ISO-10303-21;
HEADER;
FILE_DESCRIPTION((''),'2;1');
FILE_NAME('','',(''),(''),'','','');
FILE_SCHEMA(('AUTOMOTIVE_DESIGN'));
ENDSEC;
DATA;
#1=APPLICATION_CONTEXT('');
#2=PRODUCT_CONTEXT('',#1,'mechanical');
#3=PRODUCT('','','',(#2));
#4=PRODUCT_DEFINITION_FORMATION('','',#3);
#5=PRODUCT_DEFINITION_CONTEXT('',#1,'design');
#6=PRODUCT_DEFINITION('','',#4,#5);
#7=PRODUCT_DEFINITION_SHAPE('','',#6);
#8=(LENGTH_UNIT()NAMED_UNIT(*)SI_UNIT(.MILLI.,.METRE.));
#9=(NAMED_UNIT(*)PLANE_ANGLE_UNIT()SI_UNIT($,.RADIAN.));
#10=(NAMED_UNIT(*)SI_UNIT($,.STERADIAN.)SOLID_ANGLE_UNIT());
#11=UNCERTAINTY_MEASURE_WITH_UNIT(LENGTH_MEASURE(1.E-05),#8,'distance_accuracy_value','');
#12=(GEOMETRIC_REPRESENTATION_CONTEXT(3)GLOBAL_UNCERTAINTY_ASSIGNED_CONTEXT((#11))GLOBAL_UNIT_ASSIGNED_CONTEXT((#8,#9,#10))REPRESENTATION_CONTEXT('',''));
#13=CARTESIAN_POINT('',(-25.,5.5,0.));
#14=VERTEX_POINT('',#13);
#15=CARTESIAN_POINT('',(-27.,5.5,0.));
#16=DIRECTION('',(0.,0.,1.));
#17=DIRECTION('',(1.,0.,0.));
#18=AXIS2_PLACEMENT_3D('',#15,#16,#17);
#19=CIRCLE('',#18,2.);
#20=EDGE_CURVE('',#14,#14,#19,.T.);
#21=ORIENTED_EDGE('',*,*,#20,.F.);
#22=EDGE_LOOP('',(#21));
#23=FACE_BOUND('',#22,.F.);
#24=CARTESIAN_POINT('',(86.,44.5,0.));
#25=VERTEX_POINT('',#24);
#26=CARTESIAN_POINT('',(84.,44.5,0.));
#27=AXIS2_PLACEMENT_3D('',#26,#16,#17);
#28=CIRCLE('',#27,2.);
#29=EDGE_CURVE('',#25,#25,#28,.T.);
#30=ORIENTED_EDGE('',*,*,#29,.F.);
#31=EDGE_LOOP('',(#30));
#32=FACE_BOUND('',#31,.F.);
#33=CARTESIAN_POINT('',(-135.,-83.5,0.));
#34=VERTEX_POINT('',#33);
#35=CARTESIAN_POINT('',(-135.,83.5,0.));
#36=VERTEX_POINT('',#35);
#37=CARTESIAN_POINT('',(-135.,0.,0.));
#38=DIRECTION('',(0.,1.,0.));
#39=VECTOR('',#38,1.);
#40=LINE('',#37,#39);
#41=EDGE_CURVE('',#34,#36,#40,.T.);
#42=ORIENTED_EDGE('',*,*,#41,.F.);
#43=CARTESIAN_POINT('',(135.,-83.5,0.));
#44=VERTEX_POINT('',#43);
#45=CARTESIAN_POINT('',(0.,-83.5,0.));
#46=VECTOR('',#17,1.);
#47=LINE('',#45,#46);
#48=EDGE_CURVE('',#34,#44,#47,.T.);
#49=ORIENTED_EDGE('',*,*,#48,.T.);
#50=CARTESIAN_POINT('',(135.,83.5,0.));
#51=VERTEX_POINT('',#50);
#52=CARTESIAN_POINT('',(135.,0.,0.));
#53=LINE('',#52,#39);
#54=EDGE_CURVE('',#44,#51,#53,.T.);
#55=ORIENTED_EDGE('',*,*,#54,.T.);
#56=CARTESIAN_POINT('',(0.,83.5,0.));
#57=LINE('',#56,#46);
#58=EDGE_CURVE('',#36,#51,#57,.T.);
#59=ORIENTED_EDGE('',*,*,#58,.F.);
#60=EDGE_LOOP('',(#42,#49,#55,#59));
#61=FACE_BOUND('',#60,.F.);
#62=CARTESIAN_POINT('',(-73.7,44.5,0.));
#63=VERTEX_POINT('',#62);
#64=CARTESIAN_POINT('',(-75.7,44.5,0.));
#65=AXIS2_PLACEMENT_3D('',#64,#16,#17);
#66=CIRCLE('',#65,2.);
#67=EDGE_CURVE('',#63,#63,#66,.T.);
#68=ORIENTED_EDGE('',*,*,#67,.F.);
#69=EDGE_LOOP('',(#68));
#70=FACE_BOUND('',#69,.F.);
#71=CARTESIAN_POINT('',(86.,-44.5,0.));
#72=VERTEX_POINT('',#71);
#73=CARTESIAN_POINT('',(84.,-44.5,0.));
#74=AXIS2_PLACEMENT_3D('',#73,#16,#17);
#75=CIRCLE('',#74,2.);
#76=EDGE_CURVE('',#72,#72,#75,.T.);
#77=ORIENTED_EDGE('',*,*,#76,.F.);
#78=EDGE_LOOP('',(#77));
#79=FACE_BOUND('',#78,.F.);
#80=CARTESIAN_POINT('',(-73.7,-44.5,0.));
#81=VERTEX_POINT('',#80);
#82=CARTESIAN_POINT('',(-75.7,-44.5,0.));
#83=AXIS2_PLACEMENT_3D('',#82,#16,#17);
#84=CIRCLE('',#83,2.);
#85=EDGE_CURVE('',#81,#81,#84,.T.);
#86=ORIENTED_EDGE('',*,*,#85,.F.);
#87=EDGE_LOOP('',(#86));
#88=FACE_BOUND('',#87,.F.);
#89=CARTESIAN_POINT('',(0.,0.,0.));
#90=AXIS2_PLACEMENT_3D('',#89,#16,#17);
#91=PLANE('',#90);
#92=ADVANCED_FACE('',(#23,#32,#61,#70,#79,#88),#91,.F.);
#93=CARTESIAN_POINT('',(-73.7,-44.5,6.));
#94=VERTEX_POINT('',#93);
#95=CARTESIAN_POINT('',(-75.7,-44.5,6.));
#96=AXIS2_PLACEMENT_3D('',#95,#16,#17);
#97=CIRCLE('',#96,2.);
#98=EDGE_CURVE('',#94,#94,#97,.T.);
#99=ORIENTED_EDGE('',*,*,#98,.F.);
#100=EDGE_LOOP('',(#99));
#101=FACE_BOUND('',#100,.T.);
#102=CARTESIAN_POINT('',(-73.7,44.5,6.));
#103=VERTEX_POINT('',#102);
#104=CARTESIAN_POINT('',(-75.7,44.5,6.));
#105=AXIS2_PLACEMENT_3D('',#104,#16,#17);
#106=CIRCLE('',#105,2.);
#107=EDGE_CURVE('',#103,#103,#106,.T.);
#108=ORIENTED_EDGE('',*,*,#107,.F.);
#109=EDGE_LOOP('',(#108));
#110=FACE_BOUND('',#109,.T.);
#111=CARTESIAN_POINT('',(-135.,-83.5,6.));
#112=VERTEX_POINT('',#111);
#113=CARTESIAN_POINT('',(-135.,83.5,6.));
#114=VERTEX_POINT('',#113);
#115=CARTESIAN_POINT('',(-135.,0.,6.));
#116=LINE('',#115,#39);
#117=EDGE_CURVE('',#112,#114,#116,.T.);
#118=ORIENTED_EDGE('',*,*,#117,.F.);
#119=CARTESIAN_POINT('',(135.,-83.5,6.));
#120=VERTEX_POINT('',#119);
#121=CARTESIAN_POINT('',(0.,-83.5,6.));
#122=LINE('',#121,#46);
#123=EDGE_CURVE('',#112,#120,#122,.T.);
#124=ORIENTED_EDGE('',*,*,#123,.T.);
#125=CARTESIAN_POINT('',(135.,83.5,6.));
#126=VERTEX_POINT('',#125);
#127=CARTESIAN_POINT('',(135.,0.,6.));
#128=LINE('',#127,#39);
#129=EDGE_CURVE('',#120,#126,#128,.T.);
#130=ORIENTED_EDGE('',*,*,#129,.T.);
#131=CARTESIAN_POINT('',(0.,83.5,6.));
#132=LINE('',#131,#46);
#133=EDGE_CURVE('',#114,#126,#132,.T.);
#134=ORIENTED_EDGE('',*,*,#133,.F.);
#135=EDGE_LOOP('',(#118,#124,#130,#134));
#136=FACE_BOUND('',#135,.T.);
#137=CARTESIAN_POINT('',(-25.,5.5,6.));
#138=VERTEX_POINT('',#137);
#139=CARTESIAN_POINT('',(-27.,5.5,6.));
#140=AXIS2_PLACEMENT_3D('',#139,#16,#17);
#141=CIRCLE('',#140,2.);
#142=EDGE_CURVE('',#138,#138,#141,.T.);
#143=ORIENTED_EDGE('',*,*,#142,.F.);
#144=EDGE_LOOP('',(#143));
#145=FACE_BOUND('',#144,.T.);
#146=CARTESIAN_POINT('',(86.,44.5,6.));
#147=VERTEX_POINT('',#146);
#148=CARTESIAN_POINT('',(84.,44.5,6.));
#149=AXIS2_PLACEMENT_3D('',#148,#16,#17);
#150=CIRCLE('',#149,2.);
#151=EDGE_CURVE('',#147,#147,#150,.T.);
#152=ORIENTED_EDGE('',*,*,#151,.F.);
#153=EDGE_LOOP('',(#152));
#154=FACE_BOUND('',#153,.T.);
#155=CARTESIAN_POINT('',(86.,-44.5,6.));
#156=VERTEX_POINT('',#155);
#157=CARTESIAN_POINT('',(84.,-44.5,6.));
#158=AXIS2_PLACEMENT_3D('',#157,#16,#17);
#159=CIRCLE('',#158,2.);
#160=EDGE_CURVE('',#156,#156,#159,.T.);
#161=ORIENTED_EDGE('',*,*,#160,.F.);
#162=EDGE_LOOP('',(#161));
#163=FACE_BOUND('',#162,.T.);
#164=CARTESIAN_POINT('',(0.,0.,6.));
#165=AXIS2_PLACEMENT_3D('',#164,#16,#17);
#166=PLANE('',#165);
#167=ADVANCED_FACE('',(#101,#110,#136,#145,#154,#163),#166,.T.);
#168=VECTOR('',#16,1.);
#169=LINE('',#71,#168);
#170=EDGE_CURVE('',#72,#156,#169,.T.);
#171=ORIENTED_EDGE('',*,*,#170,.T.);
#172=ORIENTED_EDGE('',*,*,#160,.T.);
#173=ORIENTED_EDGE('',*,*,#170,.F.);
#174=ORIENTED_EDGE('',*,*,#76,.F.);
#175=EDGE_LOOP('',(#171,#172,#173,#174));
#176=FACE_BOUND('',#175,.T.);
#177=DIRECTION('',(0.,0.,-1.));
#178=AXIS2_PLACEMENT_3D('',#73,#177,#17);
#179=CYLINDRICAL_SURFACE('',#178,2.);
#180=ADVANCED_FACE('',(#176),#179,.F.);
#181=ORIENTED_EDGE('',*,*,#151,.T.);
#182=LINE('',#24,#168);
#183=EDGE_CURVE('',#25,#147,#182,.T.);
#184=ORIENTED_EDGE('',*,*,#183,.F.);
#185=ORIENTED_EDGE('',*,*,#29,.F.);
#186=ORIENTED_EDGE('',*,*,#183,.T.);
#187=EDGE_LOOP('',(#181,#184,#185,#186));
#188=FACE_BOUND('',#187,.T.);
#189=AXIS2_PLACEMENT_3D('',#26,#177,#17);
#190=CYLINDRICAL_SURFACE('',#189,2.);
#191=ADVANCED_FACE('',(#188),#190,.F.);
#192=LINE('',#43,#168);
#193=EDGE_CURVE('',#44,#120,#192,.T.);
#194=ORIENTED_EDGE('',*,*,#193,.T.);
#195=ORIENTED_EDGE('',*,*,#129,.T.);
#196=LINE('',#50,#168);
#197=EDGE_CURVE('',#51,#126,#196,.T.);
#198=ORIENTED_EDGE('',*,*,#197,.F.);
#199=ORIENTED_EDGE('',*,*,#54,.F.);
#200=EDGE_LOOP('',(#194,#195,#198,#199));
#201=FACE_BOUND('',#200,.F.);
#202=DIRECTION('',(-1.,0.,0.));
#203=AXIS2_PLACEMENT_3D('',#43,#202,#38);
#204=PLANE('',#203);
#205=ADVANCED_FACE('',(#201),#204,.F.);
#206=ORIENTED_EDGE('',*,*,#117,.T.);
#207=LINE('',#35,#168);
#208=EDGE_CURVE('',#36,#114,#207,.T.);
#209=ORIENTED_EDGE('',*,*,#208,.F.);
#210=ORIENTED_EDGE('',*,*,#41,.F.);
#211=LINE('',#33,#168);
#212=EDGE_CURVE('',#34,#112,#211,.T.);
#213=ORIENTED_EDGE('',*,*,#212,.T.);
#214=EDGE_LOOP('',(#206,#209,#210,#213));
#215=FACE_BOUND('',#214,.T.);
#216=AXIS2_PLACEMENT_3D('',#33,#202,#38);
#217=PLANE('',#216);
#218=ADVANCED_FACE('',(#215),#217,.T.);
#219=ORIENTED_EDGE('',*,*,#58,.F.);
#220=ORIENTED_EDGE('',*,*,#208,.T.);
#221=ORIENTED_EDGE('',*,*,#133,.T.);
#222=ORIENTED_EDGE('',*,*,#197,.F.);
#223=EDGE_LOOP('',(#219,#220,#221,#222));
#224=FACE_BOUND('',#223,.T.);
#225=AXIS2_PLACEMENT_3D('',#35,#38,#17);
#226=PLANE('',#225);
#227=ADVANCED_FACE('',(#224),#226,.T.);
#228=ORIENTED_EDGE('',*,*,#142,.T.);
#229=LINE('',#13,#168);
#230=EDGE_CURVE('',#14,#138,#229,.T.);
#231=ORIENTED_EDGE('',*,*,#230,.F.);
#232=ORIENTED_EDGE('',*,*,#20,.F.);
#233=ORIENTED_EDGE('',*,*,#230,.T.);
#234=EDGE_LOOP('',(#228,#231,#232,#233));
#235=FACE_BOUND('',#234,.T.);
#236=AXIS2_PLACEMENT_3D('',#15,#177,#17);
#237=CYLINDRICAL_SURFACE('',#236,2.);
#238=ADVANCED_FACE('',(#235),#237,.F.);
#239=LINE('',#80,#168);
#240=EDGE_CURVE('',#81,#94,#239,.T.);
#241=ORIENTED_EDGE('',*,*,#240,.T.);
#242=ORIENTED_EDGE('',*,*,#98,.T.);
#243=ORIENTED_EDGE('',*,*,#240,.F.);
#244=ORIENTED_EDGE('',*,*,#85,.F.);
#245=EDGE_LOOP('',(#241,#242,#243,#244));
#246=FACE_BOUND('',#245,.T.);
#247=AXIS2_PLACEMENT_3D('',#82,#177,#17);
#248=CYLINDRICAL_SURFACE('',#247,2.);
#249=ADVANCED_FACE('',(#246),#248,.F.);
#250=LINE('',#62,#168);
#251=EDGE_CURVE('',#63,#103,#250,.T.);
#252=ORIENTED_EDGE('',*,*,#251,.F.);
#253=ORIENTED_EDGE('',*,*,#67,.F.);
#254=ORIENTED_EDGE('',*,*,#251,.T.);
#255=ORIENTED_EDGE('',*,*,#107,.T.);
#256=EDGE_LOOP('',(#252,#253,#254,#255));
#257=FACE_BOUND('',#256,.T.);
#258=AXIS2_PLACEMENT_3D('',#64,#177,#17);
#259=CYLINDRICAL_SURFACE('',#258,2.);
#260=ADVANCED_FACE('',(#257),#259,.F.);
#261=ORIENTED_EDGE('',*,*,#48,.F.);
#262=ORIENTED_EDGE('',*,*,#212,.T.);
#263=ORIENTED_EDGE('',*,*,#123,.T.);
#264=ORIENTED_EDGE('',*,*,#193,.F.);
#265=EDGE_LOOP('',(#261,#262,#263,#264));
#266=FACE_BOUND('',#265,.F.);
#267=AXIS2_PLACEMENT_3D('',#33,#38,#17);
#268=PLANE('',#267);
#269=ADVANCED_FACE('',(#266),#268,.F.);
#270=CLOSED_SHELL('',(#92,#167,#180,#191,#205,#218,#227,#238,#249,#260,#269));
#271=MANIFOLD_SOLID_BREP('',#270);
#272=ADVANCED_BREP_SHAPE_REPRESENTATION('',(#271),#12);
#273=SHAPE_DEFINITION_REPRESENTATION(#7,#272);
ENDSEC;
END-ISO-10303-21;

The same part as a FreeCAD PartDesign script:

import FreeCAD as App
import Part
import Sketcher
Q = App.Units.Quantity

doc = App.newDocument("Part")
params = doc.addObject("Spreadsheet::Sheet", "Params")
for row, (alias, value) in enumerate([
    ("sketch1_diameter", "4 mm"),
    ("sketch1_width", "270 mm"),
    ("sketch1_height", "167 mm"),
    ("pad1_length", "6 mm"),
], start=1):
    params.set(f"A{row}", alias)
    params.set(f"B{row}", "=" + value)
    params.setAlias(f"B{row}", alias)

body = doc.addObject("PartDesign::Body", "Body")

sketch1 = body.newObject("Sketcher::SketchObject", "Sketch")
sketch1.AttachmentSupport = (doc.getObject("XY_Plane"), [""])
sketch1.MapMode = "FlatFace"
sketch1.addGeometry([
    Part.LineSegment(App.Vector(-135, 83.5, 0), App.Vector(-135, -83.5, 0)),
    Part.LineSegment(App.Vector(-135, -83.5, 0), App.Vector(135, -83.5, 0)),
    Part.LineSegment(App.Vector(135, -83.5, 0), App.Vector(135, 83.5, 0)),
    Part.LineSegment(App.Vector(135, 83.5, 0), App.Vector(-135, 83.5, 0)),
    Part.Circle(App.Vector(-75.7, -44.5, 0), App.Vector(0, 0, 1), 2),
    Part.Circle(App.Vector(84, -44.5, 0), App.Vector(0, 0, 1), 2),
    Part.Circle(App.Vector(-27, 5.5, 0), App.Vector(0, 0, 1), 2),
    Part.Circle(App.Vector(-75.7, 44.5, 0), App.Vector(0, 0, 1), 2),
    Part.Circle(App.Vector(84, 44.5, 0), App.Vector(0, 0, 1), 2),
], False)
sketch1.addConstraint([
    Sketcher.Constraint("Coincident", 0, 2, 1, 1),
    Sketcher.Constraint("Coincident", 1, 2, 2, 1),
    Sketcher.Constraint("Coincident", 2, 2, 3, 1),
    Sketcher.Constraint("Coincident", 3, 2, 0, 1),
    Sketcher.Constraint("Vertical", 0),
    Sketcher.Constraint("Horizontal", 1),
    Sketcher.Constraint("Vertical", 2),
    Sketcher.Constraint("Horizontal", 3),
    Sketcher.Constraint("Equal", 4, 5),
    Sketcher.Constraint("Equal", 5, 6),
    Sketcher.Constraint("Equal", 6, 7),
    Sketcher.Constraint("Equal", 7, 8),
    Sketcher.Constraint("Symmetric", 0, 2, 2, 2, -1, 1),
    Sketcher.Constraint("Symmetric", 4, 3, 7, 3, -1),
    Sketcher.Constraint("Symmetric", 5, 3, 8, 3, -1),
    Sketcher.Constraint("Horizontal", 4, 3, 5, 3),
    Sketcher.Constraint("Diameter", 4, Q("4 mm")),
    Sketcher.Constraint("DistanceX", 1, 1, 1, 2, Q("270 mm")),
    Sketcher.Constraint("DistanceY", 0, 2, 0, 1, Q("167 mm")),
    Sketcher.Constraint("DistanceX", -1, 1, 5, 3, Q("84 mm")),
    Sketcher.Constraint("DistanceX", 6, 3, -1, 1, Q("27 mm")),
    Sketcher.Constraint("DistanceY", 4, 3, 6, 3, Q("50 mm")),
    Sketcher.Constraint("DistanceY", 6, 3, 7, 3, Q("39 mm")),
    Sketcher.Constraint("DistanceX", 4, 3, -1, 1, Q("75.7 mm")),
])
sketch1.setExpression("Constraints[16]", "Params.sketch1_diameter")
sketch1.setExpression("Constraints[17]", "Params.sketch1_width")
sketch1.setExpression("Constraints[18]", "Params.sketch1_height")
pad1 = body.newObject("PartDesign::Pad", "Pad")
pad1.Profile = sketch1
pad1.setExpression("Length", "Params.pad1_length")

doc.recompute()
